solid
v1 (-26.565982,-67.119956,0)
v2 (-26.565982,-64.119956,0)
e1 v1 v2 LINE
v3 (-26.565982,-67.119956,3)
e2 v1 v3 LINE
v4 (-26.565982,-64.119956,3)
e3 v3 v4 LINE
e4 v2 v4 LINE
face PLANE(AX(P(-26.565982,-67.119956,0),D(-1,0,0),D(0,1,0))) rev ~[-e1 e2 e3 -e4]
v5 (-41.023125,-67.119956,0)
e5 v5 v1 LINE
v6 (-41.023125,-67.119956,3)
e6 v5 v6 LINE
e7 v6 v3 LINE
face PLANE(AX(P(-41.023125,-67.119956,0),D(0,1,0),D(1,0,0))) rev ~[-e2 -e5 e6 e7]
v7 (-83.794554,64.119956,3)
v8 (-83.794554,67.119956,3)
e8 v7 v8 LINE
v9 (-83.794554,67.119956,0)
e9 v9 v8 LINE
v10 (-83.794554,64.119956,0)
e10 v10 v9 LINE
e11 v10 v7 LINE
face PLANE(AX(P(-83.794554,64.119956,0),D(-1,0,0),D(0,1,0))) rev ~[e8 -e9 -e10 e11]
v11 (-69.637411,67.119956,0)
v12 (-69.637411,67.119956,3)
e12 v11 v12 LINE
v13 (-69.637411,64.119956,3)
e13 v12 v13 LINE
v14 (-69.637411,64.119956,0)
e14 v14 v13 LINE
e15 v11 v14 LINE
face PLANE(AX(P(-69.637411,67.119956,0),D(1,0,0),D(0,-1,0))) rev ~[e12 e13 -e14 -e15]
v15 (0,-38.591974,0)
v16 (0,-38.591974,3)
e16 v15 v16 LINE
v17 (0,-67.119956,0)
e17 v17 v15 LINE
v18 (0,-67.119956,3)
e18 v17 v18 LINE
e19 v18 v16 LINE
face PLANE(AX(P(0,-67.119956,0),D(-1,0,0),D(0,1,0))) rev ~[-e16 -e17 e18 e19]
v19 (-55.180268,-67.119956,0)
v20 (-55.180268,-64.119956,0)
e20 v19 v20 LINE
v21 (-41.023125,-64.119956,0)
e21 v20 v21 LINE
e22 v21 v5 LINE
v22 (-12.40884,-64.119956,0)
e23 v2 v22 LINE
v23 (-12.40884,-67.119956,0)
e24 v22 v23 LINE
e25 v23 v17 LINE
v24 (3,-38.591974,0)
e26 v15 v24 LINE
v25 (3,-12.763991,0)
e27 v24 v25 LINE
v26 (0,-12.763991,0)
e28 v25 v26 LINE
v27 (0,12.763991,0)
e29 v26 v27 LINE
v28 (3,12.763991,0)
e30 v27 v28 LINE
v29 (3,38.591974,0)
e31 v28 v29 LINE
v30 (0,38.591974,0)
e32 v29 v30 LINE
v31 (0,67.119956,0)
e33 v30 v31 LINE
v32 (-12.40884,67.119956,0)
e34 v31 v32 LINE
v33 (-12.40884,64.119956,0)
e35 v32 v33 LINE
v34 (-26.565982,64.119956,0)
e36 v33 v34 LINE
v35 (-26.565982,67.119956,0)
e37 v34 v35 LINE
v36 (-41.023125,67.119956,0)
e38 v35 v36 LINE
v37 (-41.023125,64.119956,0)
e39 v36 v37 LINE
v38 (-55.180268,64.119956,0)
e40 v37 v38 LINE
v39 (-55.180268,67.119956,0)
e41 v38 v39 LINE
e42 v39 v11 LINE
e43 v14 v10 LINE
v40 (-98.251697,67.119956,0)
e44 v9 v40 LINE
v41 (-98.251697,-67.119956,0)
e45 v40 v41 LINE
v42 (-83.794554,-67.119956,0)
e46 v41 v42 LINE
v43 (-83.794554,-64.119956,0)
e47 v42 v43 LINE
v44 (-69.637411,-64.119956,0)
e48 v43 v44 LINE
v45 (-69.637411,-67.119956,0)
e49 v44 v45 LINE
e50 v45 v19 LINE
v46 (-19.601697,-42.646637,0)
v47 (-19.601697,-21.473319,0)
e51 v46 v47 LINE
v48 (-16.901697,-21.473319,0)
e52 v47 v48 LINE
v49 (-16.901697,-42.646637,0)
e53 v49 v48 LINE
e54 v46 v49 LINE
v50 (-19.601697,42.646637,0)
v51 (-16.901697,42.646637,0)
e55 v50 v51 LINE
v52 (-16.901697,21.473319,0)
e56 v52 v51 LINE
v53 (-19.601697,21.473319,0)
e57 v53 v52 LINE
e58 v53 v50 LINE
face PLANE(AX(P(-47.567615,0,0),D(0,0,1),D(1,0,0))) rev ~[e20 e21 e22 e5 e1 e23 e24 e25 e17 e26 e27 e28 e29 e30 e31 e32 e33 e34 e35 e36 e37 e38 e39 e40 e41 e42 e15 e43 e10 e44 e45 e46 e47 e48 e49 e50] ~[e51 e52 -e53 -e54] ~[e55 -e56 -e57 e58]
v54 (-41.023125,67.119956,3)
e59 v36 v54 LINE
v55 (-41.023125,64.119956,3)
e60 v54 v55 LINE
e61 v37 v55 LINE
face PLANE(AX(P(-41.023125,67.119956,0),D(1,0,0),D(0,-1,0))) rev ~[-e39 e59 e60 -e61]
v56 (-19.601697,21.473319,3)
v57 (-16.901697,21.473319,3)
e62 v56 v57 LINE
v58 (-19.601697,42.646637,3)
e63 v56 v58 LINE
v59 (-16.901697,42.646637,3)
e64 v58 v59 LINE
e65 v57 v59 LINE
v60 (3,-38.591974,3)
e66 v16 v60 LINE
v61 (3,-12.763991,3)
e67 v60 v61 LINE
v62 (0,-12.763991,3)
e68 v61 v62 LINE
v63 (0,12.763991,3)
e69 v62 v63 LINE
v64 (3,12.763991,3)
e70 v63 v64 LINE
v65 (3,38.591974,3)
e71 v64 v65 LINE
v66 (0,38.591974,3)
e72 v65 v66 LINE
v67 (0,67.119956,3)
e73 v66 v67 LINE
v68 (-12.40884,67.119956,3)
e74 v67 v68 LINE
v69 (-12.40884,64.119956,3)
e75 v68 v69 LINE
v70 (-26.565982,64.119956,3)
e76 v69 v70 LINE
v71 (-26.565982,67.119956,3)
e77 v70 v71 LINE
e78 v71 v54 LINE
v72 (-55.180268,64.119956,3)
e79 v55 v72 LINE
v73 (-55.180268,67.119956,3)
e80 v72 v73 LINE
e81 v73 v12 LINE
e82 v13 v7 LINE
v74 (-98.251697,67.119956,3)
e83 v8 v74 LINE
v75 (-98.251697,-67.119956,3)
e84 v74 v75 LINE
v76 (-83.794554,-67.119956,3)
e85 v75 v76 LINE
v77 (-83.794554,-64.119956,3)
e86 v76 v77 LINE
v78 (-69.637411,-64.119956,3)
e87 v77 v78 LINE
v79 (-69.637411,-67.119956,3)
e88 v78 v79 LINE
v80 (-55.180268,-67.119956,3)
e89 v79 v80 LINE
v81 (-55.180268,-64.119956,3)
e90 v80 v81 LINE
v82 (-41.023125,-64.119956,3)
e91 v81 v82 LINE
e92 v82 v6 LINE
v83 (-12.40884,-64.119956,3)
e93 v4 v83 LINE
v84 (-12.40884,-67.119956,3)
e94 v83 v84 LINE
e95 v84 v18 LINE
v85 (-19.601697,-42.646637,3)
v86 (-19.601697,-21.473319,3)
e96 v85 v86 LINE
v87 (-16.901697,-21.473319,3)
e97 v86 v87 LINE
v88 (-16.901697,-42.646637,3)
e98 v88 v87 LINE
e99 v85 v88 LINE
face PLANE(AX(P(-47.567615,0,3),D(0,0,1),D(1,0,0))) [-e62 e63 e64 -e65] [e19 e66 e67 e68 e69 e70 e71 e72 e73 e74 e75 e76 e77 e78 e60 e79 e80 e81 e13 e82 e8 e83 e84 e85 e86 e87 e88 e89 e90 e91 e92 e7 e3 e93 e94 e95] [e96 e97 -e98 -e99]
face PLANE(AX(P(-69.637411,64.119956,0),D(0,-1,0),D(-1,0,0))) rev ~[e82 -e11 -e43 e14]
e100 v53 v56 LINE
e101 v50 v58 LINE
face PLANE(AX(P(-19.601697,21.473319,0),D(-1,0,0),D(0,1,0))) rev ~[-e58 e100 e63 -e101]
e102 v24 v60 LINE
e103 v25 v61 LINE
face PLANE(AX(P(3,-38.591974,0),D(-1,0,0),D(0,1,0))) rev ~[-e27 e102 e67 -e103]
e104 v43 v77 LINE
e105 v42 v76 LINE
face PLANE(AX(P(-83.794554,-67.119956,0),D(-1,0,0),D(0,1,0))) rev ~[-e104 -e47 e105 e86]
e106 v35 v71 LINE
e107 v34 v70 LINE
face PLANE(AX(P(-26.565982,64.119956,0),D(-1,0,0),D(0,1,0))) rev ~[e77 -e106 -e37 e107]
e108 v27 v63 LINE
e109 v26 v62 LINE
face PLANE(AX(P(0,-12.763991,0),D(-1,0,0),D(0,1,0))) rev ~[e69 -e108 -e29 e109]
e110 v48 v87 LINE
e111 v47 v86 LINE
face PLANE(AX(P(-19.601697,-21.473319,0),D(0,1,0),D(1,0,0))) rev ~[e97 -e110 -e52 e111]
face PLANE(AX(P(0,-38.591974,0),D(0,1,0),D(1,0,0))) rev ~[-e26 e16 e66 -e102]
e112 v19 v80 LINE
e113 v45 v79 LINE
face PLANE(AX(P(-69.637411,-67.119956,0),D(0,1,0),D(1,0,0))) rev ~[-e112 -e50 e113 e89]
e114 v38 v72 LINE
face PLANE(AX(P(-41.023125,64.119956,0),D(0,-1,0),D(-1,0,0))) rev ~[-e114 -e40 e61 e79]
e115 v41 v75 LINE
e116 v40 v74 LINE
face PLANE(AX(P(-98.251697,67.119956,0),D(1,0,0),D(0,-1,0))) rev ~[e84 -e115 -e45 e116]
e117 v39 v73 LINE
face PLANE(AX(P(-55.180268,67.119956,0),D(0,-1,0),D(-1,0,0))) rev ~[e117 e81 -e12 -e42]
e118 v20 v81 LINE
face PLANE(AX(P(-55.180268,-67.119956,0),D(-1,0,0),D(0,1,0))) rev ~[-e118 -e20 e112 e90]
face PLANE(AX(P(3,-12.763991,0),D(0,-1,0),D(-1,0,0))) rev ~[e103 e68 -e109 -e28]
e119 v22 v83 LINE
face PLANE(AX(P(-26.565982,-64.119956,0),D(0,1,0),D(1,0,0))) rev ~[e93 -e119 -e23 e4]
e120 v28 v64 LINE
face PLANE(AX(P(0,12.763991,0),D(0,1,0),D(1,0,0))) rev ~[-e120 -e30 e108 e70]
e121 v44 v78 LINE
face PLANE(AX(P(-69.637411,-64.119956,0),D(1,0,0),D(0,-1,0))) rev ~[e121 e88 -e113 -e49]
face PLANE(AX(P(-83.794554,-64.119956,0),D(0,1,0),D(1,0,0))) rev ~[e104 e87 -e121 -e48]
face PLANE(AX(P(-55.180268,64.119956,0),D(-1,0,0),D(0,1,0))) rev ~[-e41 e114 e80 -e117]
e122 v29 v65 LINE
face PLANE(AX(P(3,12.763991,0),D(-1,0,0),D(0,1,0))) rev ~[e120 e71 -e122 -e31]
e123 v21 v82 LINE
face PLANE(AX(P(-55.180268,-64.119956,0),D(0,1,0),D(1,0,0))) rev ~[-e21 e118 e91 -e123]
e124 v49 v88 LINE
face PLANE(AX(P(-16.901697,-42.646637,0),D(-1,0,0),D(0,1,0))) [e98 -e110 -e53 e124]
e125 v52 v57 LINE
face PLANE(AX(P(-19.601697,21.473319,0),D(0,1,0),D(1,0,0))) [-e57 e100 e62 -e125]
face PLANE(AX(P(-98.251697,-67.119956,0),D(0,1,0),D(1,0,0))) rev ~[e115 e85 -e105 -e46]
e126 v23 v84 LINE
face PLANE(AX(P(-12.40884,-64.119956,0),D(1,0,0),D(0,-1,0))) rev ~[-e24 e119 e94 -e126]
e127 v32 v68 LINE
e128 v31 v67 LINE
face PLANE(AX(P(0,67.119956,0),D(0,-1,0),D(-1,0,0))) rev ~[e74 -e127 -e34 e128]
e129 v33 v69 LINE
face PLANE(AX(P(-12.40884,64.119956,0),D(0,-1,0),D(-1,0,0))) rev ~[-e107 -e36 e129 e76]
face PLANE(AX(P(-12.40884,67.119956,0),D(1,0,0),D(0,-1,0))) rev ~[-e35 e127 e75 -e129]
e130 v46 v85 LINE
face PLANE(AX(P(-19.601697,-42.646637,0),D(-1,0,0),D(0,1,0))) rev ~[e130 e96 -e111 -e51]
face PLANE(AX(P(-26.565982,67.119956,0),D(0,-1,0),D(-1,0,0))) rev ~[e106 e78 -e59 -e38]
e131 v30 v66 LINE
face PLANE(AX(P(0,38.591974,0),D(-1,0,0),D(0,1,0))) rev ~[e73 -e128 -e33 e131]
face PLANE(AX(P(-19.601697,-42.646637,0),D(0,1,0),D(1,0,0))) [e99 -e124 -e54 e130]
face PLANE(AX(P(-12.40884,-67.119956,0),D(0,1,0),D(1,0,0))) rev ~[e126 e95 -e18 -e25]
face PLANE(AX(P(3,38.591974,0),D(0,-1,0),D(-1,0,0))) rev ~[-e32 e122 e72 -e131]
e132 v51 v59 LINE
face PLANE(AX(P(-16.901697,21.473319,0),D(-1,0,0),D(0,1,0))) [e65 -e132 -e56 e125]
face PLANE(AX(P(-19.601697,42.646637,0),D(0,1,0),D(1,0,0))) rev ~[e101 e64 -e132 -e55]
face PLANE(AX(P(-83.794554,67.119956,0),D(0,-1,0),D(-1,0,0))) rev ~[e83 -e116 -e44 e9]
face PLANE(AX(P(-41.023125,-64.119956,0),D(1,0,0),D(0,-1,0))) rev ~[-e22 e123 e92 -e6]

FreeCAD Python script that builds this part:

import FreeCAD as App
import Part
import Sketcher
from FreeCAD import Vector


def add_polygon(sketch, points):
    """Adds a closed chain of lines whose ends are joined by coincident constraints."""
    first, n = sketch.GeometryCount, len(points)
    for a, b in zip(points, points[1:] + points[:1]):
        sketch.addGeometry(Part.LineSegment(App.Vector(*a, 0), App.Vector(*b, 0)), False)
    for i in range(n):
        sketch.addConstraint(Sketcher.Constraint("Coincident", first + i, 2, first + (i + 1) % n, 1))

doc = App.newDocument("Part")
body = doc.addObject("PartDesign::Body", "Body")

sketch1 = body.newObject("Sketcher::SketchObject", "Sketch")
sketch1.AttachmentSupport = (doc.getObject("XY_Plane"), [""])
sketch1.MapMode = "FlatFace"
add_polygon(sketch1, [(-26.565982, -64.119956), (-12.40884, -64.119956), (-12.40884, -67.119956), (0, -67.119956), (0, -38.591974), (3, -38.591974), (3, -12.763991), (0, -12.763991), (0, 12.763991), (3, 12.763991), (3, 38.591974), (0, 38.591974), (0, 67.119956), (-12.40884, 67.119956), (-12.40884, 64.119956), (-26.565982, 64.119956), (-26.565982, 67.119956), (-41.023125, 67.119956), (-41.023125, 64.119956), (-55.180268, 64.119956), (-55.180268, 67.119956), (-69.637411, 67.119956), (-69.637411, 64.119956), (-83.794554, 64.119956), (-83.794554, 67.119956), (-98.251697, 67.119956), (-98.251697, -67.119956), (-83.794554, -67.119956), (-83.794554, -64.119956), (-69.637411, -64.119956), (-69.637411, -67.119956), (-55.180268, -67.119956), (-55.180268, -64.119956), (-41.023125, -64.119956), (-41.023125, -67.119956), (-26.565982, -67.119956)])
add_polygon(sketch1, [(-16.901697, -42.646637), (-19.601697, -42.646637), (-19.601697, -21.473319), (-16.901697, -21.473319)])
add_polygon(sketch1, [(-16.901697, 21.473319), (-19.601697, 21.473319), (-19.601697, 42.646637), (-16.901697, 42.646637)])
sketch1.addConstraint([
    Sketcher.Constraint("Horizontal", 0),
    Sketcher.Constraint("Vertical", 1),
    Sketcher.Constraint("Horizontal", 2),
    Sketcher.Constraint("Vertical", 3),
    Sketcher.Constraint("Horizontal", 4),
    Sketcher.Constraint("Vertical", 5),
    Sketcher.Constraint("Horizontal", 6),
    Sketcher.Constraint("Vertical", 7),
    Sketcher.Constraint("Horizontal", 8),
    Sketcher.Constraint("Vertical", 9),
    Sketcher.Constraint("Horizontal", 10),
    Sketcher.Constraint("Vertical", 11),
    Sketcher.Constraint("Horizontal", 12),
    Sketcher.Constraint("Vertical", 13),
    Sketcher.Constraint("Horizontal", 14),
    Sketcher.Constraint("Vertical", 15),
    Sketcher.Constraint("Horizontal", 16),
    Sketcher.Constraint("Vertical", 17),
    Sketcher.Constraint("Horizontal", 18),
    Sketcher.Constraint("Vertical", 19),
    Sketcher.Constraint("Horizontal", 20),
    Sketcher.Constraint("Vertical", 21),
    Sketcher.Constraint("Horizontal", 22),
    Sketcher.Constraint("Vertical", 23),
    Sketcher.Constraint("Horizontal", 24),
    Sketcher.Constraint("Vertical", 25),
    Sketcher.Constraint("Horizontal", 26),
    Sketcher.Constraint("Vertical", 27),
    Sketcher.Constraint("Horizontal", 28),
    Sketcher.Constraint("Vertical", 29),
    Sketcher.Constraint("Horizontal", 30),
    Sketcher.Constraint("Vertical", 31),
    Sketcher.Constraint("Horizontal", 32),
    Sketcher.Constraint("Vertical", 33),
    Sketcher.Constraint("Horizontal", 34),
    Sketcher.Constraint("Vertical", 35),
    Sketcher.Constraint("Horizontal", 36),
    Sketcher.Constraint("Vertical", 37),
    Sketcher.Constraint("Horizontal", 38),
    Sketcher.Constraint("Vertical", 39),
    Sketcher.Constraint("Horizontal", 40),
    Sketcher.Constraint("Vertical", 41),
    Sketcher.Constraint("Horizontal", 42),
    Sketcher.Constraint("Vertical", 43),
    Sketcher.Constraint("Symmetric", 6, 2, 7, 2, -1, 1),
    Sketcher.Constraint("Symmetric", 3, 2, 10, 2, -1, 1),
    Sketcher.Constraint("Symmetric", 2, 2, 11, 2, -1),
    Sketcher.Constraint("Symmetric", 0, 2, 13, 2, -1),
    Sketcher.Constraint("Symmetric", 23, 2, 26, 2, -1),
    Sketcher.Constraint("Symmetric", 21, 2, 28, 2, -1),
    Sketcher.Constraint("Symmetric", 19, 2, 30, 2, -1),
    Sketcher.Constraint("Symmetric", 17, 2, 32, 2, -1),
    Sketcher.Constraint("Symmetric", 15, 2, 34, 2, -1),
    Sketcher.Constraint("Symmetric", 37, 2, 40, 2, -1),
    Sketcher.Constraint("Symmetric", 39, 2, 42, 2, -1),
    Sketcher.Constraint("Horizontal", 12, 2, 15, 2),
    Sketcher.Constraint("Horizontal", 14, 2, 17, 2),
    Sketcher.Constraint("Horizontal", 16, 2, 19, 2),
    Sketcher.Constraint("Horizontal", 18, 2, 21, 2),
    Sketcher.Constraint("Horizontal", 20, 2, 23, 2),
    Sketcher.Constraint("Vertical", 5, 2, 8, 2),
    Sketcher.Constraint("Equal", 14, 18),
    Sketcher.Constraint("Equal", 16, 20),
    Sketcher.Constraint("Equal", 18, 22),
    Sketcher.Constraint("Equal", 20, 24),
    Sketcher.Constraint("Equal", 10, 1),
    Sketcher.Constraint("DistanceX", 4, 1, 4, 2, 3.0),
    Sketcher.Constraint("DistanceX", 36, 2, 36, 1, 2.7),
    Sketcher.Constraint("DistanceX", 2, 1, 2, 2, 12.40884),
    Sketcher.Constraint("DistanceY", 25, 2, 25, 1, 134.239912),
    Sketcher.Constraint("DistanceY", 37, 1, 37, 2, 21.173319),
    Sketcher.Constraint("DistanceX", 0, 1, 0, 2, 14.157143),
    Sketcher.Constraint("DistanceX", 16, 2, 16, 1, 14.457143),
    Sketcher.Constraint("DistanceY", 3, 1, 3, 2, 28.527982),
    Sketcher.Constraint("DistanceY", 5, 1, 5, 2, 25.827982),
    Sketcher.Constraint("DistanceY", 37, 2, -1, 1, 21.473319),
    Sketcher.Constraint("DistanceX", 36, 2, -1, 1, 19.601697),
])
pad1 = body.newObject("PartDesign::Pad", "Pad")
pad1.Profile = sketch1
pad1.Length = 3

doc.recompute()
